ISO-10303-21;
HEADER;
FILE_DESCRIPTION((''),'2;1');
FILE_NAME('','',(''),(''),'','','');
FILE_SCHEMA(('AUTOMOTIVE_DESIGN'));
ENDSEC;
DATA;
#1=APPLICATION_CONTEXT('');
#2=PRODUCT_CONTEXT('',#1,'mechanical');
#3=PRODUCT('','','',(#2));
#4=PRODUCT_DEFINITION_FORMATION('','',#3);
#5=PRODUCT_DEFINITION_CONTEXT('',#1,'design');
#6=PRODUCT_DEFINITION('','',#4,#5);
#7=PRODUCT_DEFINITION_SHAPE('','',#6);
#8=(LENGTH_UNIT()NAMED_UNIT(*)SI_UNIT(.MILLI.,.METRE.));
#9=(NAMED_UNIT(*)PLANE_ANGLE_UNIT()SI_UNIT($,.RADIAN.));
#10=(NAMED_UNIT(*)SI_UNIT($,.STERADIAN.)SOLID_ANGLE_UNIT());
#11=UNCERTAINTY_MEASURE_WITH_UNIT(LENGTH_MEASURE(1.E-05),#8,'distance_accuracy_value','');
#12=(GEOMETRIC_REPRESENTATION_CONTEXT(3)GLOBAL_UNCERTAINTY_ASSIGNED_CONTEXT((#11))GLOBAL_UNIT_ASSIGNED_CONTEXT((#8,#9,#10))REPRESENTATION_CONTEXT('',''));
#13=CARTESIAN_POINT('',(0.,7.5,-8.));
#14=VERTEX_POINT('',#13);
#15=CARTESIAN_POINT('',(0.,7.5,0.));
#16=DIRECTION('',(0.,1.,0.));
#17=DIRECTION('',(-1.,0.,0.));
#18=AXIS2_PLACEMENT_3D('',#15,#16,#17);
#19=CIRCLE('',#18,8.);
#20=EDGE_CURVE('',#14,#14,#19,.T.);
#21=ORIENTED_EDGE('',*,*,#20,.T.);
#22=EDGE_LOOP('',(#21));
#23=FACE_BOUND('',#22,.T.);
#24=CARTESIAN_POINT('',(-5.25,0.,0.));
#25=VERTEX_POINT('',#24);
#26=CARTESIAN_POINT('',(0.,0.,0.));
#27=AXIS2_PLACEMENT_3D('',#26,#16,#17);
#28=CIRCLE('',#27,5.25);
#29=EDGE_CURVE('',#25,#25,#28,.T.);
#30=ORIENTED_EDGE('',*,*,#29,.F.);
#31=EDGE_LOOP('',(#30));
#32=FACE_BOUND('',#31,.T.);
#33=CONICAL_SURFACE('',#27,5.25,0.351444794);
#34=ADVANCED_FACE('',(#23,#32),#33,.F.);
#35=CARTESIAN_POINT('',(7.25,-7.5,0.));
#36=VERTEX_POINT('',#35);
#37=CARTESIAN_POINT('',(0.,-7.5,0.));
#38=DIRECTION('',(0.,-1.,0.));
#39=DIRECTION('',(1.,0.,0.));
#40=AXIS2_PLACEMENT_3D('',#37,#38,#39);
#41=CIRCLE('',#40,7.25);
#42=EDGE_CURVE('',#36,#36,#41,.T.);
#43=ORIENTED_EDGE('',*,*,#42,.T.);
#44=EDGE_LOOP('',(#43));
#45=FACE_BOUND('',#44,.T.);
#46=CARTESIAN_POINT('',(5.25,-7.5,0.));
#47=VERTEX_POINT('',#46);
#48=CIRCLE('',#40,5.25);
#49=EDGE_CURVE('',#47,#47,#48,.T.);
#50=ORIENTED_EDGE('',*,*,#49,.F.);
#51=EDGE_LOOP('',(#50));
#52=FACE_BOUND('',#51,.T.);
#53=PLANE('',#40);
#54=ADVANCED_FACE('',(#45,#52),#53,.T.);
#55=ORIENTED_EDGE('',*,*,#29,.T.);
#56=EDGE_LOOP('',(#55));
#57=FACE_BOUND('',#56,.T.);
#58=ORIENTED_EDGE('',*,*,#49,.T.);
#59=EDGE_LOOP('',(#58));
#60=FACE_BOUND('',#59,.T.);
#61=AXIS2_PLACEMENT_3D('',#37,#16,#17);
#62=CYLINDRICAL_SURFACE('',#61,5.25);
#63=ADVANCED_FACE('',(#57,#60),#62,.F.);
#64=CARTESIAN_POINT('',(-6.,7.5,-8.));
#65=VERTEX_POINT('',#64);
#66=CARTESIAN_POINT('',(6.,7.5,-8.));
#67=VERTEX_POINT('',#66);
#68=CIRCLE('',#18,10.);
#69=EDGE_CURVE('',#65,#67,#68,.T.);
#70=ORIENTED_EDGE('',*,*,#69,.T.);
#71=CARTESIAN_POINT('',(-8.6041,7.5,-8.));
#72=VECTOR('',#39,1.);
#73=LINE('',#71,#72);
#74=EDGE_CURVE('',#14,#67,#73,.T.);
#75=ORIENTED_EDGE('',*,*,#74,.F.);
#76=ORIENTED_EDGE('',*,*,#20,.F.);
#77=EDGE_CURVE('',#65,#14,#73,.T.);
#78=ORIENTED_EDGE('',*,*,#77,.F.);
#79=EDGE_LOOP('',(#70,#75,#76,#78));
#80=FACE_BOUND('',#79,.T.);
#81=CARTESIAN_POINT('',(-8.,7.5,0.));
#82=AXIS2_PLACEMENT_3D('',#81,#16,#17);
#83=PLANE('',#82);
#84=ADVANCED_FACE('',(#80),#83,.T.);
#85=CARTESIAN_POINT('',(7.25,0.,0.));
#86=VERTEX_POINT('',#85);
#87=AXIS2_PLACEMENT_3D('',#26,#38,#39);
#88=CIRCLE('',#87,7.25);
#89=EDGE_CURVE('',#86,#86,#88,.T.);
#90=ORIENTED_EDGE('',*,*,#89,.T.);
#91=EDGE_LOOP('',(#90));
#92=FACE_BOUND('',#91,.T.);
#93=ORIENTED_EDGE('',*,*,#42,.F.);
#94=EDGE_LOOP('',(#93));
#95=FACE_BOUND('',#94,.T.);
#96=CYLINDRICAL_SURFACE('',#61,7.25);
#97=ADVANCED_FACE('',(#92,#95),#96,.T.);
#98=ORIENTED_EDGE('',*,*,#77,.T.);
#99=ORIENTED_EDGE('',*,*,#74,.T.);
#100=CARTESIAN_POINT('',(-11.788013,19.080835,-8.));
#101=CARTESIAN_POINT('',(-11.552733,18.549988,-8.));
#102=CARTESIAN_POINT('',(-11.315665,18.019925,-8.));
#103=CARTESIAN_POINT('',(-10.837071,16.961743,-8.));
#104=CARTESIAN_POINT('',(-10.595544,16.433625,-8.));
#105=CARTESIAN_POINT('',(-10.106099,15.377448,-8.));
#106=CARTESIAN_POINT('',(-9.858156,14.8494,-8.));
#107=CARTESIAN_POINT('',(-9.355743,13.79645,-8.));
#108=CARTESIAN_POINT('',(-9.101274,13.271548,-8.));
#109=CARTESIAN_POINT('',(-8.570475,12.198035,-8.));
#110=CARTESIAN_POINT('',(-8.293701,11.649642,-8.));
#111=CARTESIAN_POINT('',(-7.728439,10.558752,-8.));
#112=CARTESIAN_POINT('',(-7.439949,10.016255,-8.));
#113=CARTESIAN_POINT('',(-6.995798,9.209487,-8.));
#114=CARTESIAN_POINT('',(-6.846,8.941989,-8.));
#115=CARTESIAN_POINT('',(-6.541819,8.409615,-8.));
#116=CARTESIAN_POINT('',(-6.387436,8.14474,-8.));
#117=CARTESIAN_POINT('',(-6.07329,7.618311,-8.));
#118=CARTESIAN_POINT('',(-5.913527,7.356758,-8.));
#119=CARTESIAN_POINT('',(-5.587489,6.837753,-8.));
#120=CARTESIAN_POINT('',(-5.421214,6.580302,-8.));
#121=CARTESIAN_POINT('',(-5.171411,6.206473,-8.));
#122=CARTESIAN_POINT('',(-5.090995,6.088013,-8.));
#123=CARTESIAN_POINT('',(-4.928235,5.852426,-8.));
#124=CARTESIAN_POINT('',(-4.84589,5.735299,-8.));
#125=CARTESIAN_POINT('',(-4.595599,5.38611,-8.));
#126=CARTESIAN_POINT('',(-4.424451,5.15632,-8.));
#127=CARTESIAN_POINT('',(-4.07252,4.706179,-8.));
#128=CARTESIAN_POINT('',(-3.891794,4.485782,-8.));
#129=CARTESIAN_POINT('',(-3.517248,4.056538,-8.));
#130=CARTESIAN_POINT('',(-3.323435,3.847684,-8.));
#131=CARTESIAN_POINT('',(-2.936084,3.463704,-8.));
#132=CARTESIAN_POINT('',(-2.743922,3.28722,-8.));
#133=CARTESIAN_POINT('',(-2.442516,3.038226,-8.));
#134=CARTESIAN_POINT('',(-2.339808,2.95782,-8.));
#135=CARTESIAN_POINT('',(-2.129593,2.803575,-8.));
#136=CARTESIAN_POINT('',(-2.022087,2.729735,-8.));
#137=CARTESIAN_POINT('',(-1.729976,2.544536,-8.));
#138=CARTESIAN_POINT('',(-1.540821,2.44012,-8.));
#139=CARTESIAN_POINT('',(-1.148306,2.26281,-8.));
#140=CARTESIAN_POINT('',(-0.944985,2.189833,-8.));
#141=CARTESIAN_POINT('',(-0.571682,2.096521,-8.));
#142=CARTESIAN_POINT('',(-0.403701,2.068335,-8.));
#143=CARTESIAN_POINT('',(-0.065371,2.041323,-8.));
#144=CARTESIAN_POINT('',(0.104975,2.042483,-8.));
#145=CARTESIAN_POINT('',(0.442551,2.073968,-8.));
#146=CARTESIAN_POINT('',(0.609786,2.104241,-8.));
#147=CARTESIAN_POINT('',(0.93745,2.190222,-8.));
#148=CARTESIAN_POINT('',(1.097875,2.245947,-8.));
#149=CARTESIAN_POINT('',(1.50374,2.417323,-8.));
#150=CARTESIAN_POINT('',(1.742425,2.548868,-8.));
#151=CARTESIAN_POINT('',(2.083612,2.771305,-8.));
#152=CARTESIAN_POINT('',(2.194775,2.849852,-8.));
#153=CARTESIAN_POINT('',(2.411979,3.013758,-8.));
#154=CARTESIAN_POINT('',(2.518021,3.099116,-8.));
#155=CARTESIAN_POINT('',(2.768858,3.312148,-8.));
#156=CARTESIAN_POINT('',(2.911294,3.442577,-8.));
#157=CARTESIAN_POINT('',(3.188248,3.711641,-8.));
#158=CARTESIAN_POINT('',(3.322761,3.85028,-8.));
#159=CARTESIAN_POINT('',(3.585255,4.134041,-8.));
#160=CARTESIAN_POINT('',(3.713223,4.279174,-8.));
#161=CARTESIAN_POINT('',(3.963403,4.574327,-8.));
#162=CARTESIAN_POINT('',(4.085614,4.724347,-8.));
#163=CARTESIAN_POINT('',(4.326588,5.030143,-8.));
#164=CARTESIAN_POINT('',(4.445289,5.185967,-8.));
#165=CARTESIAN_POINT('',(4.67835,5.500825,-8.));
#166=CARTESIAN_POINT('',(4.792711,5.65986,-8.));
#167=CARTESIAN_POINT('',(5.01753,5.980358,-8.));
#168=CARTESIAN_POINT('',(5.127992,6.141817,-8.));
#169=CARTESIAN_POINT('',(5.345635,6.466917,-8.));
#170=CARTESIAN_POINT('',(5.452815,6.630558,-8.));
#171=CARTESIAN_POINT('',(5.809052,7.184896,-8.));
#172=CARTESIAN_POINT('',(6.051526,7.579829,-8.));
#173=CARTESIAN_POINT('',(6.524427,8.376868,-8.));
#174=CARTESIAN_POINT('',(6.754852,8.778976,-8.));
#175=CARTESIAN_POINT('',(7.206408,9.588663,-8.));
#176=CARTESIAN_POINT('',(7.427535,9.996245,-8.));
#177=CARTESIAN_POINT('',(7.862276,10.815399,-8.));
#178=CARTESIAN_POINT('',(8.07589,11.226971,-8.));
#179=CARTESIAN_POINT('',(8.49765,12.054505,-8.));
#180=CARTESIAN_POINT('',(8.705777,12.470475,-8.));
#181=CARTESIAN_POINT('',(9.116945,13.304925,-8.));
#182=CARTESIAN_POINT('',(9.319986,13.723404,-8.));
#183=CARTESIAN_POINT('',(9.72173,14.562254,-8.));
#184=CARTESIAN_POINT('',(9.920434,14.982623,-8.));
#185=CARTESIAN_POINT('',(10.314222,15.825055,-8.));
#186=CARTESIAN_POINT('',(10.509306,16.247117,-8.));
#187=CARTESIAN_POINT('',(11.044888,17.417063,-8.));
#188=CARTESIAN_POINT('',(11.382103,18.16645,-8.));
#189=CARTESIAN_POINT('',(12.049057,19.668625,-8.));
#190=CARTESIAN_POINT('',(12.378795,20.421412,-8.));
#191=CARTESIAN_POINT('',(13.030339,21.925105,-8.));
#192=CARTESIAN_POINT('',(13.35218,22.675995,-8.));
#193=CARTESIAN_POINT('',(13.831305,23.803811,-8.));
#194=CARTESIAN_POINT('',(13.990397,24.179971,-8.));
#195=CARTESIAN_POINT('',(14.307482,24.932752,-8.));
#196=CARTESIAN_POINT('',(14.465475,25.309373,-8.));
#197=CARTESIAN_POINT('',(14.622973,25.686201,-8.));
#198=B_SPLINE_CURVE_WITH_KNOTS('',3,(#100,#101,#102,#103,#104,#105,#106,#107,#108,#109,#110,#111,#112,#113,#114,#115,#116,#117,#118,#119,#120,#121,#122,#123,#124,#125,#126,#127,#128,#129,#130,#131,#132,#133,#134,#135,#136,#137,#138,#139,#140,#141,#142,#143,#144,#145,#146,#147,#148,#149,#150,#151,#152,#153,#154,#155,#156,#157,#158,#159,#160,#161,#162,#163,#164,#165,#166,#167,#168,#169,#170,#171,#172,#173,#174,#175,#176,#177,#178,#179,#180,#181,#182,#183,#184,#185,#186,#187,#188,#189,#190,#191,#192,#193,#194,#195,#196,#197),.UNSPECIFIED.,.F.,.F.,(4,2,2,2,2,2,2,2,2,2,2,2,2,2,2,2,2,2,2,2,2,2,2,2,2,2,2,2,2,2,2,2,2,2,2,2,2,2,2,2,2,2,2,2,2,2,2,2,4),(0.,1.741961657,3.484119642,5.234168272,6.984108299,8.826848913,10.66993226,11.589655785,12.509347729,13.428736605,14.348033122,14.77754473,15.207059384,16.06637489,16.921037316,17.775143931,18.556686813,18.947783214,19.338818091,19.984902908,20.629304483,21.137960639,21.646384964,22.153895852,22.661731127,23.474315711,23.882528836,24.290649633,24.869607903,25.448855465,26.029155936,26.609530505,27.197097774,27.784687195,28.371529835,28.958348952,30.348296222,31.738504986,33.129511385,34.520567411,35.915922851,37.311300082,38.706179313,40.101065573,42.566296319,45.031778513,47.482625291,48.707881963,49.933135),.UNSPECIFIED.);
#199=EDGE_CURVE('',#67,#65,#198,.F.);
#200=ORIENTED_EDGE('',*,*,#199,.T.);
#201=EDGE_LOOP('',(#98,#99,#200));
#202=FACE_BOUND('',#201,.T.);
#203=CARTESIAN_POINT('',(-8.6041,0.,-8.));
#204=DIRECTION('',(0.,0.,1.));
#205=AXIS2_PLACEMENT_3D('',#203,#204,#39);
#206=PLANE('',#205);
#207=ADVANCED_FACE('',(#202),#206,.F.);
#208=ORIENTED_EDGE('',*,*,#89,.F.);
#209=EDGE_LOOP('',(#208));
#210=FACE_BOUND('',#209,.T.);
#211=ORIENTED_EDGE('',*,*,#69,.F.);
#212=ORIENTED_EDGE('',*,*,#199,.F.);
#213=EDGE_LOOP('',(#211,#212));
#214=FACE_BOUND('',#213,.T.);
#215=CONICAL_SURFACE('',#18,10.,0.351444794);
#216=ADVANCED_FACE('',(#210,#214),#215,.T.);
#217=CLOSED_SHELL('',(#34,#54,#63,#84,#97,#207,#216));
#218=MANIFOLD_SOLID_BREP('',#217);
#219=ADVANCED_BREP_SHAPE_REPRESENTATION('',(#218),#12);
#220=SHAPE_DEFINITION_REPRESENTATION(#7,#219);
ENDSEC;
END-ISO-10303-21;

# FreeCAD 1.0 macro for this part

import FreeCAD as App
import Part
import Sketcher
Q = App.Units.Quantity

doc = App.newDocument("Part")
body = doc.addObject("PartDesign::Body", "Body")

sketch1 = body.newObject("Sketcher::SketchObject", "Sketch")
sketch1.AttachmentSupport = (doc.getObject("XY_Plane"), [""])
sketch1.MapMode = "FlatFace"
sketch1.addGeometry([
    Part.LineSegment(App.Vector(-5.2, 0, 0), App.Vector(-8, 7.5, 0)),
    Part.LineSegment(App.Vector(-8, 7.5, 0), App.Vector(-10, 7.5, 0)),
    Part.LineSegment(App.Vector(-10, 7.5, 0), App.Vector(-7.2, 0, 0)),
    Part.LineSegment(App.Vector(-7.2, 0, 0), App.Vector(-5.2, 0, 0)),
], False)
sketch1.addConstraint([
    Sketcher.Constraint("Coincident", 0, 2, 1, 1),
    Sketcher.Constraint("Coincident", 1, 2, 2, 1),
    Sketcher.Constraint("Coincident", 2, 2, 3, 1),
    Sketcher.Constraint("Coincident", 3, 2, 0, 1),
    Sketcher.Constraint("Horizontal", 1),
    Sketcher.Constraint("Horizontal", 3),
    Sketcher.Constraint("PointOnObject", 2, 2, -1),
    Sketcher.Constraint("Parallel", 0, 2),
    Sketcher.Constraint("DistanceX", 1, 2, 1, 1, Q("2 mm")),
    Sketcher.Constraint("DistanceX", 0, 2, -1, 1, Q("8 mm")),
    Sketcher.Constraint("DistanceY", -1, 1, 0, 2, Q("7.5 mm")),
    Sketcher.Constraint("DistanceX", 2, 2, -1, 1, Q("7.25 mm")),
])
revolution = body.newObject("PartDesign::Revolution", "Revolution")
revolution.Profile = sketch1
revolution.ReferenceAxis = (sketch1, ["V_Axis"])
revolution.Angle = 360

sketch2 = body.newObject("Sketcher::SketchObject", "Sketch001")
sketch2.AttachmentSupport = (doc.getObject("XZ_Plane"), [""])
sketch2.MapMode = "FlatFace"
sketch2.addGeometry([
    Part.Circle(App.Vector(0, 0, 0), App.Vector(0, 0, 1), 7),
    Part.Circle(App.Vector(0, 0, 0), App.Vector(0, 0, 1), 5),
], False)
sketch2.addConstraint([
    Sketcher.Constraint("Coincident", 0, 3, -1, 1),
    Sketcher.Constraint("Coincident", 1, 3, -1, 1),
    Sketcher.Constraint("Diameter", 0, Q("14.5 mm")),
    Sketcher.Constraint("Diameter", 1, Q("10.5 mm")),
])
pad1 = body.newObject("PartDesign::Pad", "Pad")
pad1.Profile = sketch2
pad1.Length = 7.5

sketch3 = body.newObject("Sketcher::SketchObject", "Sketch002")
sketch3.AttachmentSupport = (doc.getObject("XZ_Plane"), [""])
sketch3.MapMode = "FlatFace"
sketch3.AttachmentOffset = App.Placement(App.Vector(0, 0, -7.5), App.Rotation())
sketch3.addGeometry([
    Part.LineSegment(App.Vector(-9, -8, 0), App.Vector(9, -8, 0)),
    Part.LineSegment(App.Vector(9, -8, 0), App.Vector(0, -13, 0)),
    Part.LineSegment(App.Vector(0, -13, 0), App.Vector(-9, -8, 0)),
], False)
sketch3.addConstraint([
    Sketcher.Constraint("Coincident", 0, 2, 1, 1),
    Sketcher.Constraint("Coincident", 1, 2, 2, 1),
    Sketcher.Constraint("Coincident", 2, 2, 0, 1),
    Sketcher.Constraint("Horizontal", 0),
    Sketcher.Constraint("PointOnObject", 1, 2, -2),
    Sketcher.Constraint("Equal", 1, 2),
    Sketcher.Constraint("DistanceY", 0, 2, -1, 1, Q("8 mm")),
    Sketcher.Constraint("DistanceX", 0, 1, 0, 2, Q("17.2082 mm")),
    Sketcher.Constraint("Distance", 1, Q("9.752806 mm")),
])
pocket1 = body.newObject("PartDesign::Pocket", "Pocket")
pocket1.Profile = sketch3
pocket1.Length = 7.5
pocket1.Reversed = True

doc.recompute()
